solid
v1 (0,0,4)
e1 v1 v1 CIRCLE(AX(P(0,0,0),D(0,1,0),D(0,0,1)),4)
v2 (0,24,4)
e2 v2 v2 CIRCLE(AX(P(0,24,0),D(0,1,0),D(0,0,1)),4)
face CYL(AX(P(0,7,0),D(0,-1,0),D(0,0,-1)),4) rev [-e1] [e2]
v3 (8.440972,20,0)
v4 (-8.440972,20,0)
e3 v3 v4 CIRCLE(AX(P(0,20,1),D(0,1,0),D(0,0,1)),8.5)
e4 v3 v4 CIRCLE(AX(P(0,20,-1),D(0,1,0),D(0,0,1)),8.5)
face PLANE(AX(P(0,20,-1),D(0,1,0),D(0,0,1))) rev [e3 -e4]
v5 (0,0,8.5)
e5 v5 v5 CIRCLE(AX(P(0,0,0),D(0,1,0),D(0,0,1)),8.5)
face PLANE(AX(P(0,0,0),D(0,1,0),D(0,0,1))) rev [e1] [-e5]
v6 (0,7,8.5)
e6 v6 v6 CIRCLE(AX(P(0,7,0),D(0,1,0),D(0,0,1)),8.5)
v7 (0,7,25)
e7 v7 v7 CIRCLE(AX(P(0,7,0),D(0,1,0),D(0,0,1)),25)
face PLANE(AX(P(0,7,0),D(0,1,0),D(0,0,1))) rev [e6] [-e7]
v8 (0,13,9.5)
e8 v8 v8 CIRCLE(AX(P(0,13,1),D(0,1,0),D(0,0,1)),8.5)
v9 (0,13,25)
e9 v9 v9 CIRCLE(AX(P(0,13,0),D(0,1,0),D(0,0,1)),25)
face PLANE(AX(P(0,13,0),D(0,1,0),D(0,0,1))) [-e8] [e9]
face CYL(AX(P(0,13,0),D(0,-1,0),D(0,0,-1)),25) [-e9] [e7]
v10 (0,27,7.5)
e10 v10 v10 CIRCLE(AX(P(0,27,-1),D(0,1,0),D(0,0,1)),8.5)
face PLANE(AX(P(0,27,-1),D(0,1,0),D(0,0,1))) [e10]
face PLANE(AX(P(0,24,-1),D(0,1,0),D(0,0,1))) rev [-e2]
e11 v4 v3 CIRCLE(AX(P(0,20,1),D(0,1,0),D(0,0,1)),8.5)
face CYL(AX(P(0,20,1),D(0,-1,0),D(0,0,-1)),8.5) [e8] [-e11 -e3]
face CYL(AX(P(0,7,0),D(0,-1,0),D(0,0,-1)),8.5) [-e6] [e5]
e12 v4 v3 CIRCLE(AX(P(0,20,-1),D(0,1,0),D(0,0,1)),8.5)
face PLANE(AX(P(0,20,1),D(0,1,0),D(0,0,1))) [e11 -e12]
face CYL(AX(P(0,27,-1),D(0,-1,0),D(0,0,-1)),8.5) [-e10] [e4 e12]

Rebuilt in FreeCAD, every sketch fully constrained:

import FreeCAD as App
import Part
import Sketcher

doc = App.newDocument("Part")
body = doc.addObject("PartDesign::Body", "Body")

# Sketch on XZ plane
sketch1 = doc.addObject("Sketcher::SketchObject", "Sketch")
body.addObject(sketch1)
sketch1.AttachmentSupport = (doc.XZ_Plane, [""])
sketch1.MapMode = "FlatFace"
sketch1.addGeometry(Part.Circle(App.Vector(0, 0, 0), App.Vector(0, 0, 1), 8.5), False)
sketch1.addGeometry(Part.Circle(App.Vector(0, 0, 0), App.Vector(0, 0, 1), 4), False)
sketch1.addConstraint(Sketcher.Constraint("Coincident", 0, 3, -1, 1))
sketch1.addConstraint(Sketcher.Constraint("Coincident", 1, 3, -1, 1))
sketch1.addConstraint(Sketcher.Constraint("Diameter", 0, 17.0))
sketch1.addConstraint(Sketcher.Constraint("Diameter", 1, 8.0))
pad1 = doc.addObject("PartDesign::Pad", "Pad")
body.addObject(pad1)
pad1.Profile = sketch1
pad1.Length = 7
pad1.Reversed = True

# Sketch on XZ plane
sketch2 = doc.addObject("Sketcher::SketchObject", "Sketch001")
body.addObject(sketch2)
sketch2.AttachmentSupport = (doc.XZ_Plane, [""])
sketch2.MapMode = "FlatFace"
sketch2.AttachmentOffset = App.Placement(App.Vector(0, 0, -7), App.Rotation())
sketch2.addGeometry(Part.Circle(App.Vector(0, 0, 0), App.Vector(0, 0, 1), 25), False)
sketch2.addGeometry(Part.Circle(App.Vector(0, 0, 0), App.Vector(0, 0, 1), 4), False)
sketch2.addConstraint(Sketcher.Constraint("Coincident", 0, 3, -1, 1))
sketch2.addConstraint(Sketcher.Constraint("Coincident", 1, 3, -1, 1))
sketch2.addConstraint(Sketcher.Constraint("Diameter", 0, 50.0))
sketch2.addConstraint(Sketcher.Constraint("Diameter", 1, 8.0))
pad2 = doc.addObject("PartDesign::Pad", "Pad001")
body.addObject(pad2)
pad2.Profile = sketch2
pad2.Length = 6
pad2.Reversed = True

# Sketch on XZ plane
sketch3 = doc.addObject("Sketcher::SketchObject", "Sketch002")
body.addObject(sketch3)
sketch3.AttachmentSupport = (doc.XZ_Plane, [""])
sketch3.MapMode = "FlatFace"
sketch3.AttachmentOffset = App.Placement(App.Vector(0, 0, -13), App.Rotation())
sketch3.addGeometry(Part.Circle(App.Vector(0, 1, 0), App.Vector(0, 0, 1), 8.5), False)
sketch3.addGeometry(Part.Circle(App.Vector(0, 0, 0), App.Vector(0, 0, 1), 4), False)
sketch3.addConstraint(Sketcher.Constraint("Coincident", 1, 3, -1, 1))
sketch3.addConstraint(Sketcher.Constraint("PointOnObject", 0, 3, -2))
sketch3.addConstraint(Sketcher.Constraint("Diameter", 0, 17.0))
sketch3.addConstraint(Sketcher.Constraint("Diameter", 1, 8.0))
sketch3.addConstraint(Sketcher.Constraint("DistanceY", -1, 1, 0, 3, 1.0))
pad3 = doc.addObject("PartDesign::Pad", "Pad002")
body.addObject(pad3)
pad3.Profile = sketch3
pad3.Length = 7
pad3.Reversed = True

# Sketch on XZ plane
sketch4 = doc.addObject("Sketcher::SketchObject", "Sketch003")
body.addObject(sketch4)
sketch4.AttachmentSupport = (doc.XZ_Plane, [""])
sketch4.MapMode = "FlatFace"
sketch4.AttachmentOffset = App.Placement(App.Vector(0, 0, -20), App.Rotation())
sketch4.addGeometry(Part.Circle(App.Vector(0, -1, 0), App.Vector(0, 0, 1), 8.5), False)
sketch4.addGeometry(Part.Circle(App.Vector(0, 0, 0), App.Vector(0, 0, 1), 4), False)
sketch4.addConstraint(Sketcher.Constraint("Coincident", 1, 3, -1, 1))
sketch4.addConstraint(Sketcher.Constraint("PointOnObject", 0, 3, -2))
sketch4.addConstraint(Sketcher.Constraint("Diameter", 0, 17.0))
sketch4.addConstraint(Sketcher.Constraint("Diameter", 1, 8.0))
sketch4.addConstraint(Sketcher.Constraint("DistanceY", 0, 3, -1, 1, 1.0))
pad4 = doc.addObject("PartDesign::Pad", "Pad003")
body.addObject(pad4)
pad4.Profile = sketch4
pad4.Length = 7
pad4.Reversed = True

# Sketch on XZ plane
sketch5 = doc.addObject("Sketcher::SketchObject", "Sketch004")
body.addObject(sketch5)
sketch5.AttachmentSupport = (doc.XZ_Plane, [""])
sketch5.MapMode = "FlatFace"
sketch5.AttachmentOffset = App.Placement(App.Vector(0, 0, -24), App.Rotation())
sketch5.addGeometry(Part.Circle(App.Vector(0, -1, 0), App.Vector(0, 0, 1), 8), False)
sketch5.addConstraint(Sketcher.Constraint("PointOnObject", 0, 3, -2))
sketch5.addConstraint(Sketcher.Constraint("Diameter", 0, 17.0))
sketch5.addConstraint(Sketcher.Constraint("DistanceY", 0, 3, -1, 1, 1.0))
pad5 = doc.addObject("PartDesign::Pad", "Pad004")
body.addObject(pad5)
pad5.Profile = sketch5
pad5.Length = 3
pad5.Reversed = True

doc.recompute()
